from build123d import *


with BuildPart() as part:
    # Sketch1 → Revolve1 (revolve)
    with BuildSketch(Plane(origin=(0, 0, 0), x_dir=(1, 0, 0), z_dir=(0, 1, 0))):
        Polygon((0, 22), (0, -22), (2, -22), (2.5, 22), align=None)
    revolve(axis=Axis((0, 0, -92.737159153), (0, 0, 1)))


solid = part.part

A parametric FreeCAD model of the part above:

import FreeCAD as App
import Part
import Sketcher

V = App.Vector


def add_polygon(sketch, points):
    """Adds a closed chain of lines whose ends are joined by coincident constraints."""
    first, n = sketch.GeometryCount, len(points)
    for a, b in zip(points, points[1:] + points[:1]):
        sketch.addGeometry(Part.LineSegment(App.Vector(*a, 0), App.Vector(*b, 0)), False)
    for i in range(n):
        sketch.addConstraint(Sketcher.Constraint("Coincident", first + i, 2, first + (i + 1) % n, 1))

doc = App.newDocument("Part")
params = doc.addObject("Spreadsheet::Sheet", "Params")
for row, (alias, value) in enumerate([
    ("sketch1_width", "2 mm"),
    ("sketch1_height", "44 mm"),
    ("sketch1_width2", "2.5 mm"),
    ("revolution_angle", "360 deg"),
], start=1):
    params.set(f"A{row}", alias)
    params.set(f"B{row}", "=" + value)
    params.setAlias(f"B{row}", alias)

body = doc.addObject("PartDesign::Body", "Body")

# Sketch on XZ plane
sketch1 = body.newObject("Sketcher::SketchObject", "Sketch")
sketch1.AttachmentSupport = (doc.getObject("XZ_Plane"), [""])
sketch1.MapMode = "FlatFace"
add_polygon(sketch1, [(0, -22), (0, 22), (2, 22), (2.5, -22)])  # lines 0-3
sketch1.addConstraint([
    Sketcher.Constraint("Vertical", 0),
    Sketcher.Constraint("Horizontal", 1),
    Sketcher.Constraint("Horizontal", 3),
    Sketcher.Constraint("Symmetric", 0, 2, 3, 2, -1, 1),
    Sketcher.Constraint("DistanceX", 1, 1, 1, 2, 2.0),
    Sketcher.Constraint("DistanceY", 0, 1, 0, 2, 44.0),
    Sketcher.Constraint("DistanceX", 3, 2, 3, 1, 2.5),
])
sketch1.setExpression("Constraints[8]", "Params.sketch1_width")
sketch1.setExpression("Constraints[9]", "Params.sketch1_height")
sketch1.setExpression("Constraints[10]", "Params.sketch1_width2")
revolution = body.newObject("PartDesign::Revolution", "Revolution")
revolution.Profile = sketch1
revolution.ReferenceAxis = (sketch1, ["V_Axis"])
revolution.setExpression("Angle", "Params.revolution_angle")

doc.recompute()
